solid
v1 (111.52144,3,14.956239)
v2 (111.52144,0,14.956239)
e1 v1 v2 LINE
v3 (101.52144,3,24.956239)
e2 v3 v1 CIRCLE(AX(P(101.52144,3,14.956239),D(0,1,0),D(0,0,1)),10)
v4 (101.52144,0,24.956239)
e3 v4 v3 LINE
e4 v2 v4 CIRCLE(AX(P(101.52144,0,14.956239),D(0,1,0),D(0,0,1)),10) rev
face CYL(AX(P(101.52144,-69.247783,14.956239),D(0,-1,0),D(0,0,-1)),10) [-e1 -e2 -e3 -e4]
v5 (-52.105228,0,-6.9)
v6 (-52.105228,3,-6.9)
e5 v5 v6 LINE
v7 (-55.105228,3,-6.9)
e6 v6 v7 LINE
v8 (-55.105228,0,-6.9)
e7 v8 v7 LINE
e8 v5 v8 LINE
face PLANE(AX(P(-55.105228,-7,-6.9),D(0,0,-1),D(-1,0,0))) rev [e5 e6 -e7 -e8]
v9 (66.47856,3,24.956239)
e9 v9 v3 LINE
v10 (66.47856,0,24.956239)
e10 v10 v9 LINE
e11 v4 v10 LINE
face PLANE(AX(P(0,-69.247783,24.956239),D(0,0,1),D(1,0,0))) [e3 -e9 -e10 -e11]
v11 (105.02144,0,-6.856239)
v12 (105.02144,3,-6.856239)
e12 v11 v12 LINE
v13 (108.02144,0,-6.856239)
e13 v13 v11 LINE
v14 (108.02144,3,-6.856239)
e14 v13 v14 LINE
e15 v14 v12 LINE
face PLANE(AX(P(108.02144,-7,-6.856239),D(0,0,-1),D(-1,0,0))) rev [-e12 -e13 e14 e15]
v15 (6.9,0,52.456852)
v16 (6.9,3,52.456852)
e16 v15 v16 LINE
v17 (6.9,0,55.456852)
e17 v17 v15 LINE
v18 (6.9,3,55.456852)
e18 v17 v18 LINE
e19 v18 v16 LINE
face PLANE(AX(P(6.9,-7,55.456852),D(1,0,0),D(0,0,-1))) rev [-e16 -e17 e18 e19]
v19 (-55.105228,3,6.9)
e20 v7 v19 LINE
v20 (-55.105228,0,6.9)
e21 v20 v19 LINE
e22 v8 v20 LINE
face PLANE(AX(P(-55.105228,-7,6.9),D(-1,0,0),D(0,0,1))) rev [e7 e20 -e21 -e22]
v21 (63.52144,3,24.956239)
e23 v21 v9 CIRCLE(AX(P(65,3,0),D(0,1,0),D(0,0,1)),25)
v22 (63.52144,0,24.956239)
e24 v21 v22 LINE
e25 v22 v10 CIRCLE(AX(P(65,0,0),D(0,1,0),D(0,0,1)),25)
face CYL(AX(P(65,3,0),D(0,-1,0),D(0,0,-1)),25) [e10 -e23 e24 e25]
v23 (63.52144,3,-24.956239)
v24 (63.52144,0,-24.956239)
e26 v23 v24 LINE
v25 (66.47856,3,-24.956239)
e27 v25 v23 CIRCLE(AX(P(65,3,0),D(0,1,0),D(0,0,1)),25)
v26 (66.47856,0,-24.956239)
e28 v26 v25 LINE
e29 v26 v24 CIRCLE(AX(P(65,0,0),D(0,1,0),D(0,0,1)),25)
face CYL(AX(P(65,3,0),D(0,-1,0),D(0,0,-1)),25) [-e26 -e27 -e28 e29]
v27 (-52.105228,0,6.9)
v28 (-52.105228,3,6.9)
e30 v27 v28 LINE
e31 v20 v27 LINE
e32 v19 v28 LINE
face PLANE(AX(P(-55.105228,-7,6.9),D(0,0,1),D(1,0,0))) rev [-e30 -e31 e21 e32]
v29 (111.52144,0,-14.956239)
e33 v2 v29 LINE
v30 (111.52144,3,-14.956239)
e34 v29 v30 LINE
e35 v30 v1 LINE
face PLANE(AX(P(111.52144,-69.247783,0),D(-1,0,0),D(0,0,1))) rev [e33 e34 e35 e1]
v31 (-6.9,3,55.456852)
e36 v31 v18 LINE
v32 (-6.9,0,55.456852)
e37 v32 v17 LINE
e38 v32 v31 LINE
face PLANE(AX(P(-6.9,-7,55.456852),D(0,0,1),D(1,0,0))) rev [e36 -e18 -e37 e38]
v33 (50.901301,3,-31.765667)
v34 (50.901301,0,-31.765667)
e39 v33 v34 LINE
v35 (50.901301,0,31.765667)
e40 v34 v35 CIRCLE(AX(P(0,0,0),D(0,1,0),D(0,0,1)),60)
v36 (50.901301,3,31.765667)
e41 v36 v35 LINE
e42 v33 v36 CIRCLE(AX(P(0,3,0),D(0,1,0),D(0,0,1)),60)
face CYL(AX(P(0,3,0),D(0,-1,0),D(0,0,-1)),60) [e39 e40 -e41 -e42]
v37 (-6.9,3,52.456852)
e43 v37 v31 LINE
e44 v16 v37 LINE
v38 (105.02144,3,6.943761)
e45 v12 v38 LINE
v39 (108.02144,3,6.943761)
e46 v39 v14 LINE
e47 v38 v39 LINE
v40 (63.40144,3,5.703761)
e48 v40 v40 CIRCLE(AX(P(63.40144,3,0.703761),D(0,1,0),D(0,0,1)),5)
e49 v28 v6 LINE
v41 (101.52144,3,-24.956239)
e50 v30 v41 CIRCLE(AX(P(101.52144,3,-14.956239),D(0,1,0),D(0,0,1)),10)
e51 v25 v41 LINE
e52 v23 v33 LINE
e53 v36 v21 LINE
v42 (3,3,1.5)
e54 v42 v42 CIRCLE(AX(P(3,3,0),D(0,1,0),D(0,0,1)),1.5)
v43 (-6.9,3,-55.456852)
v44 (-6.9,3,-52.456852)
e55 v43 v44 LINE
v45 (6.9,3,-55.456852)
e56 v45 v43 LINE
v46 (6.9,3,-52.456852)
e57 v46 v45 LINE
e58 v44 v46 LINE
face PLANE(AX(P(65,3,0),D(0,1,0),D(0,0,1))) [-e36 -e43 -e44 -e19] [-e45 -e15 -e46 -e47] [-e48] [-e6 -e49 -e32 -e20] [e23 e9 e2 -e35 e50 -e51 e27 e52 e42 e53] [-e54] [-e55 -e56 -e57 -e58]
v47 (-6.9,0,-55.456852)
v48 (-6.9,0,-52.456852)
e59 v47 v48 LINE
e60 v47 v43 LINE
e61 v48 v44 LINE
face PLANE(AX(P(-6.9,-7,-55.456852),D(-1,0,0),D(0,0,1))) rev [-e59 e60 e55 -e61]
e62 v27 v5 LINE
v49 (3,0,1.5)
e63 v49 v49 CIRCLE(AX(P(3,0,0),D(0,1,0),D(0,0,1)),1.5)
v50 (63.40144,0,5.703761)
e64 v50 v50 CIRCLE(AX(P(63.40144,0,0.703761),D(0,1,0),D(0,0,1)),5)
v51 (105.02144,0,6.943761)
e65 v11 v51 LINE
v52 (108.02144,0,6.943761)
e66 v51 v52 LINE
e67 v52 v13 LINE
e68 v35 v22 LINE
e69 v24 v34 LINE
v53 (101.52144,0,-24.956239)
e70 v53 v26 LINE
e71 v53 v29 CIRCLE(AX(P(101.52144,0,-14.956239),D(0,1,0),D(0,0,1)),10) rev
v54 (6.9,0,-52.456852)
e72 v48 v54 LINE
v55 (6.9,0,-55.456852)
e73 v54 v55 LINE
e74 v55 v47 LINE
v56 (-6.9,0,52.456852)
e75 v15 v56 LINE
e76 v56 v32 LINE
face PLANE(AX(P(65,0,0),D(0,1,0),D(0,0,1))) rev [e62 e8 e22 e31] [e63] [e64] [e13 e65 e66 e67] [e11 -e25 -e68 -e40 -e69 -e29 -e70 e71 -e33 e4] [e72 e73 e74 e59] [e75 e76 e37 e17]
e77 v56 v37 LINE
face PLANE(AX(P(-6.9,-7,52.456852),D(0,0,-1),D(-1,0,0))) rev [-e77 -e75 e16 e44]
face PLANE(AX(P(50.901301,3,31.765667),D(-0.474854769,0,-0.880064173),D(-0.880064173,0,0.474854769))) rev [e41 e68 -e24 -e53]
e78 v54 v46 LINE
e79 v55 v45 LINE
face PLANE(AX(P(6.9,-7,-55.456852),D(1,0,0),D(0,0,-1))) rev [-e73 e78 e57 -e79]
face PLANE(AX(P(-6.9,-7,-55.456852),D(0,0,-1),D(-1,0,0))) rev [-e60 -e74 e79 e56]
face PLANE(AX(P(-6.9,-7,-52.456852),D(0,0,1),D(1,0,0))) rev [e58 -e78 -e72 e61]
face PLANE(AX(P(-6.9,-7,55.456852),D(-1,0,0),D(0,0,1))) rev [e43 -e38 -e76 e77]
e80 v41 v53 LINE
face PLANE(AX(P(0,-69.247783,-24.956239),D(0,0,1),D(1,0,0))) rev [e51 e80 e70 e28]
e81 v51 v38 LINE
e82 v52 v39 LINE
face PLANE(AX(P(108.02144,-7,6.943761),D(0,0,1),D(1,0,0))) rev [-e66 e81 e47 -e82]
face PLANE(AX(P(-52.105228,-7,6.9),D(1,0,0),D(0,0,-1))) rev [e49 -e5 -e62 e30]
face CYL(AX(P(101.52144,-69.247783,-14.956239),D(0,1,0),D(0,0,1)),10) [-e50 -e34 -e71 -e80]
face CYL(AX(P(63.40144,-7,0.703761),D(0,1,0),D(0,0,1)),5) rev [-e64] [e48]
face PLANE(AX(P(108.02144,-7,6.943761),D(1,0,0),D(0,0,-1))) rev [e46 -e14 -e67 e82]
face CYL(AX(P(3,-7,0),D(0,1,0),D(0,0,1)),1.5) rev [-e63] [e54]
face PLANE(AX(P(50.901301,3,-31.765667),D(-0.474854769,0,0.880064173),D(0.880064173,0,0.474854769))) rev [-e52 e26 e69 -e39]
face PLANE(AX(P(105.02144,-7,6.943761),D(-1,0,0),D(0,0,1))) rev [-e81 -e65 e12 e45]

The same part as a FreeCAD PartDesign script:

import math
import FreeCAD as App
import Part
import Sketcher


def edges_at(feature, points):
    """Names of the edges that pass closest to the given points."""
    edges = feature.Shape.Edges
    near = lambda p: min(range(len(edges)), key=lambda i: edges[i].distToShape(Part.Vertex(*p))[0])
    return sorted({f"Edge{near(p) + 1}" for p in points})


def add_polygon(sketch, points):
    """Adds a closed chain of lines whose ends are joined by coincident constraints."""
    first, n = sketch.GeometryCount, len(points)
    for a, b in zip(points, points[1:] + points[:1]):
        sketch.addGeometry(Part.LineSegment(App.Vector(*a, 0), App.Vector(*b, 0)), False)
    for i in range(n):
        sketch.addConstraint(Sketcher.Constraint("Coincident", first + i, 2, first + (i + 1) % n, 1))

doc = App.newDocument("Part")
params = doc.addObject("Spreadsheet::Sheet", "Params")
for row, (alias, value) in enumerate([
    ("sketch1_radius", "25 mm"),
    ("sketch1_radius2", "60 mm"),
    ("pad1_length", "3 mm"),
    ("sketch2_width", "3 mm"),
    ("sketch2_width2", "13.8 mm"),
    ("pocket1_length", "10 mm"),
    ("sketch3_radius", "25 mm"),
    ("pad2_length", "3 mm"),
    ("fillet_radius", "10 mm"),
    ("sketch4_width", "3 mm"),
    ("sketch4_height", "13.8 mm"),
    ("pocket2_length", "10 mm"),
    ("sketch5_diameter", "3 mm"),
    ("pocket3_length", "10 mm"),
    ("sketch6_diameter", "10 mm"),
    ("pocket4_length", "10 mm"),
], start=1):
    params.set(f"A{row}", alias)
    params.set(f"B{row}", "=" + value)
    params.setAlias(f"B{row}", alias)

body = doc.addObject("PartDesign::Body", "Body")

# Sketch on XZ plane
sketch1 = body.newObject("Sketcher::SketchObject", "Sketch")
sketch1.AttachmentSupport = (doc.getObject("XZ_Plane"), [""])
sketch1.MapMode = "FlatFace"
sketch1.addGeometry([
    Part.LineSegment(App.Vector(50.901301, 31.765667, 0), App.Vector(63.52144, 24.956239, 0)),
    Part.ArcOfCircle(Part.Circle(App.Vector(65, 0, 0), App.Vector(0, 0, 1), 25), math.radians(-93.390588), math.radians(93.390588)),
    Part.LineSegment(App.Vector(63.52144, -24.956239, 0), App.Vector(50.901301, -31.765667, 0)),
    Part.ArcOfCircle(Part.Circle(App.Vector(0, 0, 0), App.Vector(0, 0, 1), 60), math.radians(31.9668), math.radians(328.0332)),
], False)
sketch1.addConstraint([
    Sketcher.Constraint("Coincident", 0, 2, 1, 2),
    Sketcher.Constraint("Coincident", 1, 1, 2, 1),
    Sketcher.Constraint("Coincident", 2, 2, 3, 2),
    Sketcher.Constraint("Coincident", 3, 1, 0, 1),
    Sketcher.Constraint("Coincident", 3, 3, -1, 1),
    Sketcher.Constraint("Symmetric", 0, 2, 1, 1, -1),
    Sketcher.Constraint("Vertical", 2, 2, 3, 1),
    Sketcher.Constraint("Radius", 1, 25.0),
    Sketcher.Constraint("Radius", 3, 60.0),
    Sketcher.Constraint("DistanceX", -1, 1, 1, 3, 65.0),
    Sketcher.Constraint("DistanceX", -1, 1, 2, 2, 50.901301),
    Sketcher.Constraint("Distance", 0, 14.340022),
])
sketch1.setExpression("Constraints[7]", "Params.sketch1_radius")
sketch1.setExpression("Constraints[8]", "Params.sketch1_radius2")
pad1 = body.newObject("PartDesign::Pad", "Pad")
pad1.Profile = sketch1
pad1.setExpression("Length", "Params.pad1_length")
pad1.Reversed = True

# Sketch on XZ plane
sketch2 = body.newObject("Sketcher::SketchObject", "Sketch001")
sketch2.AttachmentSupport = (doc.getObject("XZ_Plane"), [""])
sketch2.MapMode = "FlatFace"
sketch2.AttachmentOffset = App.Placement(App.Vector(0, 0, -3), App.Rotation())
add_polygon(sketch2, [(-6.9, -55.456852), (-6.9, -52.456852), (6.9, -52.456852), (6.9, -55.456852)])  # lines 0-3
add_polygon(sketch2, [(-6.9, 52.456852), (-6.9, 55.456852), (6.9, 55.456852), (6.9, 52.456852)])  # lines 4-7
add_polygon(sketch2, [(-55.105228, -6.9), (-55.105228, 6.9), (-52.105228, 6.9), (-52.105228, -6.9)])  # lines 8-11
sketch2.addConstraint([
    Sketcher.Constraint("Vertical", 0),
    Sketcher.Constraint("Horizontal", 1),
    Sketcher.Constraint("Vertical", 2),
    Sketcher.Constraint("Horizontal", 3),
    Sketcher.Constraint("Vertical", 4),
    Sketcher.Constraint("Horizontal", 5),
    Sketcher.Constraint("Vertical", 6),
    Sketcher.Constraint("Horizontal", 7),
    Sketcher.Constraint("Vertical", 8),
    Sketcher.Constraint("Horizontal", 9),
    Sketcher.Constraint("Vertical", 10),
    Sketcher.Constraint("Horizontal", 11),
    Sketcher.Constraint("Symmetric", 2, 2, 4, 2, -1, 1),
    Sketcher.Constraint("Symmetric", 0, 2, 6, 2, -1, 1),
    Sketcher.Constraint("Vertical", 3, 2, 4, 2),
    Sketcher.Constraint("Equal", 11, 0),
    Sketcher.Constraint("Equal", 7, 8),
    Sketcher.Constraint("DistanceX", 9, 1, 9, 2, 3.0),
    Sketcher.Constraint("DistanceX", 1, 1, 1, 2, 13.8),
    Sketcher.Constraint("DistanceY", -1, 1, 8, 2, 6.9),
    Sketcher.Constraint("DistanceY", 0, 2, -1, 1, 52.456852),
    Sketcher.Constraint("DistanceX", 8, 2, -1, 1, 55.105228),
])
sketch2.setExpression("Constraints[29]", "Params.sketch2_width")
sketch2.setExpression("Constraints[30]", "Params.sketch2_width2")
pocket1 = body.newObject("PartDesign::Pocket", "Pocket")
pocket1.Profile = sketch2
pocket1.setExpression("Length", "Params.pocket1_length")
pocket1.Reversed = True

# Sketch on XZ plane
sketch3 = body.newObject("Sketcher::SketchObject", "Sketch002")
sketch3.AttachmentSupport = (doc.getObject("XZ_Plane"), [""])
sketch3.MapMode = "FlatFace"
sketch3.addGeometry([
    Part.LineSegment(App.Vector(111.52144, -24.956239, 0), App.Vector(66.47856, -24.956239, 0)),
    Part.ArcOfCircle(Part.Circle(App.Vector(65, 0, 0), App.Vector(0, 0, 1), 25), math.radians(-86.609412), math.radians(86.609412)),
    Part.LineSegment(App.Vector(66.47856, 24.956239, 0), App.Vector(111.52144, 24.956239, 0)),
    Part.LineSegment(App.Vector(111.52144, 24.956239, 0), App.Vector(111.52144, -24.956239, 0)),
], False)
sketch3.addConstraint([
    Sketcher.Constraint("Coincident", 0, 2, 1, 1),
    Sketcher.Constraint("Coincident", 1, 2, 2, 1),
    Sketcher.Constraint("Coincident", 2, 2, 3, 1),
    Sketcher.Constraint("Coincident", 3, 2, 0, 1),
    Sketcher.Constraint("Horizontal", 0),
    Sketcher.Constraint("Horizontal", 2),
    Sketcher.Constraint("Vertical", 3),
    Sketcher.Constraint("Symmetric", 0, 2, 1, 2, -1),
    Sketcher.Constraint("Radius", 1, 25.0),
    Sketcher.Constraint("DistanceX", -1, 1, 1, 3, 65.0),
    Sketcher.Constraint("DistanceX", 0, 2, 0, 1, 45.04288),
    Sketcher.Constraint("DistanceY", 3, 2, 3, 1, 49.912478),
])
sketch3.setExpression("Constraints[8]", "Params.sketch3_radius")
pad2 = body.newObject("PartDesign::Pad", "Pad001")
pad2.Profile = sketch3
pad2.setExpression("Length", "Params.pad2_length")
pad2.Reversed = True
doc.recompute()

fillet = body.newObject("PartDesign::Fillet", "Fillet")
fillet.Base = (pad2, edges_at(pad2, [(111.521, 1.5, 24.956), (111.521, 1.5, -24.956)]))
fillet.setExpression("Radius", "Params.fillet_radius")

# Sketch on XZ plane
sketch4 = body.newObject("Sketcher::SketchObject", "Sketch003")
sketch4.AttachmentSupport = (doc.getObject("XZ_Plane"), [""])
sketch4.MapMode = "FlatFace"
sketch4.AttachmentOffset = App.Placement(App.Vector(0, 0, -3), App.Rotation())
add_polygon(sketch4, [(105.02144, -6.856239), (105.02144, 6.943761), (108.02144, 6.943761), (108.02144, -6.856239)])  # lines 0-3
sketch4.addConstraint([
    Sketcher.Constraint("Vertical", 0),
    Sketcher.Constraint("Horizontal", 1),
    Sketcher.Constraint("Vertical", 2),
    Sketcher.Constraint("Horizontal", 3),
    Sketcher.Constraint("DistanceX", 1, 1, 1, 2, 3.0),
    Sketcher.Constraint("DistanceY", 0, 1, 0, 2, 13.8),
    Sketcher.Constraint("DistanceX", -1, 1, 0, 2, 105.02144),
    Sketcher.Constraint("DistanceY", -1, 1, 0, 2, 6.943761),
])
sketch4.setExpression("Constraints[8]", "Params.sketch4_width")
sketch4.setExpression("Constraints[9]", "Params.sketch4_height")
pocket2 = body.newObject("PartDesign::Pocket", "Pocket001")
pocket2.Profile = sketch4
pocket2.setExpression("Length", "Params.pocket2_length")
pocket2.Reversed = True

# Sketch on XZ plane
sketch5 = body.newObject("Sketcher::SketchObject", "Sketch004")
sketch5.AttachmentSupport = (doc.getObject("XZ_Plane"), [""])
sketch5.MapMode = "FlatFace"
sketch5.AttachmentOffset = App.Placement(App.Vector(0, 0, -3), App.Rotation())
sketch5.addGeometry(Part.Circle(App.Vector(3, 0, 0), App.Vector(0, 0, 1), 1.5), False)
sketch5.addConstraint([
    Sketcher.Constraint("PointOnObject", 0, 3, -1),
    Sketcher.Constraint("Diameter", 0, 3.0),
    Sketcher.Constraint("DistanceX", -1, 1, 0, 3, 3.0),
])
sketch5.setExpression("Constraints[1]", "Params.sketch5_diameter")
pocket3 = body.newObject("PartDesign::Pocket", "Pocket002")
pocket3.Profile = sketch5
pocket3.setExpression("Length", "Params.pocket3_length")
pocket3.Reversed = True

# Sketch on XZ plane
sketch6 = body.newObject("Sketcher::SketchObject", "Sketch005")
sketch6.AttachmentSupport = (doc.getObject("XZ_Plane"), [""])
sketch6.MapMode = "FlatFace"
sketch6.AttachmentOffset = App.Placement(App.Vector(0, 0, -3), App.Rotation())
sketch6.addGeometry(Part.Circle(App.Vector(63.40144, 0.703761, 0), App.Vector(0, 0, 1), 5), False)
sketch6.addConstraint([
    Sketcher.Constraint("Diameter", 0, 10.0),
    Sketcher.Constraint("DistanceX", -1, 1, 0, 3, 63.40144),
    Sketcher.Constraint("DistanceY", -1, 1, 0, 3, 0.703761),
])
sketch6.setExpression("Constraints[0]", "Params.sketch6_diameter")
pocket4 = body.newObject("PartDesign::Pocket", "Pocket003")
pocket4.Profile = sketch6
pocket4.setExpression("Length", "Params.pocket4_length")
pocket4.Reversed = True

doc.recompute()
